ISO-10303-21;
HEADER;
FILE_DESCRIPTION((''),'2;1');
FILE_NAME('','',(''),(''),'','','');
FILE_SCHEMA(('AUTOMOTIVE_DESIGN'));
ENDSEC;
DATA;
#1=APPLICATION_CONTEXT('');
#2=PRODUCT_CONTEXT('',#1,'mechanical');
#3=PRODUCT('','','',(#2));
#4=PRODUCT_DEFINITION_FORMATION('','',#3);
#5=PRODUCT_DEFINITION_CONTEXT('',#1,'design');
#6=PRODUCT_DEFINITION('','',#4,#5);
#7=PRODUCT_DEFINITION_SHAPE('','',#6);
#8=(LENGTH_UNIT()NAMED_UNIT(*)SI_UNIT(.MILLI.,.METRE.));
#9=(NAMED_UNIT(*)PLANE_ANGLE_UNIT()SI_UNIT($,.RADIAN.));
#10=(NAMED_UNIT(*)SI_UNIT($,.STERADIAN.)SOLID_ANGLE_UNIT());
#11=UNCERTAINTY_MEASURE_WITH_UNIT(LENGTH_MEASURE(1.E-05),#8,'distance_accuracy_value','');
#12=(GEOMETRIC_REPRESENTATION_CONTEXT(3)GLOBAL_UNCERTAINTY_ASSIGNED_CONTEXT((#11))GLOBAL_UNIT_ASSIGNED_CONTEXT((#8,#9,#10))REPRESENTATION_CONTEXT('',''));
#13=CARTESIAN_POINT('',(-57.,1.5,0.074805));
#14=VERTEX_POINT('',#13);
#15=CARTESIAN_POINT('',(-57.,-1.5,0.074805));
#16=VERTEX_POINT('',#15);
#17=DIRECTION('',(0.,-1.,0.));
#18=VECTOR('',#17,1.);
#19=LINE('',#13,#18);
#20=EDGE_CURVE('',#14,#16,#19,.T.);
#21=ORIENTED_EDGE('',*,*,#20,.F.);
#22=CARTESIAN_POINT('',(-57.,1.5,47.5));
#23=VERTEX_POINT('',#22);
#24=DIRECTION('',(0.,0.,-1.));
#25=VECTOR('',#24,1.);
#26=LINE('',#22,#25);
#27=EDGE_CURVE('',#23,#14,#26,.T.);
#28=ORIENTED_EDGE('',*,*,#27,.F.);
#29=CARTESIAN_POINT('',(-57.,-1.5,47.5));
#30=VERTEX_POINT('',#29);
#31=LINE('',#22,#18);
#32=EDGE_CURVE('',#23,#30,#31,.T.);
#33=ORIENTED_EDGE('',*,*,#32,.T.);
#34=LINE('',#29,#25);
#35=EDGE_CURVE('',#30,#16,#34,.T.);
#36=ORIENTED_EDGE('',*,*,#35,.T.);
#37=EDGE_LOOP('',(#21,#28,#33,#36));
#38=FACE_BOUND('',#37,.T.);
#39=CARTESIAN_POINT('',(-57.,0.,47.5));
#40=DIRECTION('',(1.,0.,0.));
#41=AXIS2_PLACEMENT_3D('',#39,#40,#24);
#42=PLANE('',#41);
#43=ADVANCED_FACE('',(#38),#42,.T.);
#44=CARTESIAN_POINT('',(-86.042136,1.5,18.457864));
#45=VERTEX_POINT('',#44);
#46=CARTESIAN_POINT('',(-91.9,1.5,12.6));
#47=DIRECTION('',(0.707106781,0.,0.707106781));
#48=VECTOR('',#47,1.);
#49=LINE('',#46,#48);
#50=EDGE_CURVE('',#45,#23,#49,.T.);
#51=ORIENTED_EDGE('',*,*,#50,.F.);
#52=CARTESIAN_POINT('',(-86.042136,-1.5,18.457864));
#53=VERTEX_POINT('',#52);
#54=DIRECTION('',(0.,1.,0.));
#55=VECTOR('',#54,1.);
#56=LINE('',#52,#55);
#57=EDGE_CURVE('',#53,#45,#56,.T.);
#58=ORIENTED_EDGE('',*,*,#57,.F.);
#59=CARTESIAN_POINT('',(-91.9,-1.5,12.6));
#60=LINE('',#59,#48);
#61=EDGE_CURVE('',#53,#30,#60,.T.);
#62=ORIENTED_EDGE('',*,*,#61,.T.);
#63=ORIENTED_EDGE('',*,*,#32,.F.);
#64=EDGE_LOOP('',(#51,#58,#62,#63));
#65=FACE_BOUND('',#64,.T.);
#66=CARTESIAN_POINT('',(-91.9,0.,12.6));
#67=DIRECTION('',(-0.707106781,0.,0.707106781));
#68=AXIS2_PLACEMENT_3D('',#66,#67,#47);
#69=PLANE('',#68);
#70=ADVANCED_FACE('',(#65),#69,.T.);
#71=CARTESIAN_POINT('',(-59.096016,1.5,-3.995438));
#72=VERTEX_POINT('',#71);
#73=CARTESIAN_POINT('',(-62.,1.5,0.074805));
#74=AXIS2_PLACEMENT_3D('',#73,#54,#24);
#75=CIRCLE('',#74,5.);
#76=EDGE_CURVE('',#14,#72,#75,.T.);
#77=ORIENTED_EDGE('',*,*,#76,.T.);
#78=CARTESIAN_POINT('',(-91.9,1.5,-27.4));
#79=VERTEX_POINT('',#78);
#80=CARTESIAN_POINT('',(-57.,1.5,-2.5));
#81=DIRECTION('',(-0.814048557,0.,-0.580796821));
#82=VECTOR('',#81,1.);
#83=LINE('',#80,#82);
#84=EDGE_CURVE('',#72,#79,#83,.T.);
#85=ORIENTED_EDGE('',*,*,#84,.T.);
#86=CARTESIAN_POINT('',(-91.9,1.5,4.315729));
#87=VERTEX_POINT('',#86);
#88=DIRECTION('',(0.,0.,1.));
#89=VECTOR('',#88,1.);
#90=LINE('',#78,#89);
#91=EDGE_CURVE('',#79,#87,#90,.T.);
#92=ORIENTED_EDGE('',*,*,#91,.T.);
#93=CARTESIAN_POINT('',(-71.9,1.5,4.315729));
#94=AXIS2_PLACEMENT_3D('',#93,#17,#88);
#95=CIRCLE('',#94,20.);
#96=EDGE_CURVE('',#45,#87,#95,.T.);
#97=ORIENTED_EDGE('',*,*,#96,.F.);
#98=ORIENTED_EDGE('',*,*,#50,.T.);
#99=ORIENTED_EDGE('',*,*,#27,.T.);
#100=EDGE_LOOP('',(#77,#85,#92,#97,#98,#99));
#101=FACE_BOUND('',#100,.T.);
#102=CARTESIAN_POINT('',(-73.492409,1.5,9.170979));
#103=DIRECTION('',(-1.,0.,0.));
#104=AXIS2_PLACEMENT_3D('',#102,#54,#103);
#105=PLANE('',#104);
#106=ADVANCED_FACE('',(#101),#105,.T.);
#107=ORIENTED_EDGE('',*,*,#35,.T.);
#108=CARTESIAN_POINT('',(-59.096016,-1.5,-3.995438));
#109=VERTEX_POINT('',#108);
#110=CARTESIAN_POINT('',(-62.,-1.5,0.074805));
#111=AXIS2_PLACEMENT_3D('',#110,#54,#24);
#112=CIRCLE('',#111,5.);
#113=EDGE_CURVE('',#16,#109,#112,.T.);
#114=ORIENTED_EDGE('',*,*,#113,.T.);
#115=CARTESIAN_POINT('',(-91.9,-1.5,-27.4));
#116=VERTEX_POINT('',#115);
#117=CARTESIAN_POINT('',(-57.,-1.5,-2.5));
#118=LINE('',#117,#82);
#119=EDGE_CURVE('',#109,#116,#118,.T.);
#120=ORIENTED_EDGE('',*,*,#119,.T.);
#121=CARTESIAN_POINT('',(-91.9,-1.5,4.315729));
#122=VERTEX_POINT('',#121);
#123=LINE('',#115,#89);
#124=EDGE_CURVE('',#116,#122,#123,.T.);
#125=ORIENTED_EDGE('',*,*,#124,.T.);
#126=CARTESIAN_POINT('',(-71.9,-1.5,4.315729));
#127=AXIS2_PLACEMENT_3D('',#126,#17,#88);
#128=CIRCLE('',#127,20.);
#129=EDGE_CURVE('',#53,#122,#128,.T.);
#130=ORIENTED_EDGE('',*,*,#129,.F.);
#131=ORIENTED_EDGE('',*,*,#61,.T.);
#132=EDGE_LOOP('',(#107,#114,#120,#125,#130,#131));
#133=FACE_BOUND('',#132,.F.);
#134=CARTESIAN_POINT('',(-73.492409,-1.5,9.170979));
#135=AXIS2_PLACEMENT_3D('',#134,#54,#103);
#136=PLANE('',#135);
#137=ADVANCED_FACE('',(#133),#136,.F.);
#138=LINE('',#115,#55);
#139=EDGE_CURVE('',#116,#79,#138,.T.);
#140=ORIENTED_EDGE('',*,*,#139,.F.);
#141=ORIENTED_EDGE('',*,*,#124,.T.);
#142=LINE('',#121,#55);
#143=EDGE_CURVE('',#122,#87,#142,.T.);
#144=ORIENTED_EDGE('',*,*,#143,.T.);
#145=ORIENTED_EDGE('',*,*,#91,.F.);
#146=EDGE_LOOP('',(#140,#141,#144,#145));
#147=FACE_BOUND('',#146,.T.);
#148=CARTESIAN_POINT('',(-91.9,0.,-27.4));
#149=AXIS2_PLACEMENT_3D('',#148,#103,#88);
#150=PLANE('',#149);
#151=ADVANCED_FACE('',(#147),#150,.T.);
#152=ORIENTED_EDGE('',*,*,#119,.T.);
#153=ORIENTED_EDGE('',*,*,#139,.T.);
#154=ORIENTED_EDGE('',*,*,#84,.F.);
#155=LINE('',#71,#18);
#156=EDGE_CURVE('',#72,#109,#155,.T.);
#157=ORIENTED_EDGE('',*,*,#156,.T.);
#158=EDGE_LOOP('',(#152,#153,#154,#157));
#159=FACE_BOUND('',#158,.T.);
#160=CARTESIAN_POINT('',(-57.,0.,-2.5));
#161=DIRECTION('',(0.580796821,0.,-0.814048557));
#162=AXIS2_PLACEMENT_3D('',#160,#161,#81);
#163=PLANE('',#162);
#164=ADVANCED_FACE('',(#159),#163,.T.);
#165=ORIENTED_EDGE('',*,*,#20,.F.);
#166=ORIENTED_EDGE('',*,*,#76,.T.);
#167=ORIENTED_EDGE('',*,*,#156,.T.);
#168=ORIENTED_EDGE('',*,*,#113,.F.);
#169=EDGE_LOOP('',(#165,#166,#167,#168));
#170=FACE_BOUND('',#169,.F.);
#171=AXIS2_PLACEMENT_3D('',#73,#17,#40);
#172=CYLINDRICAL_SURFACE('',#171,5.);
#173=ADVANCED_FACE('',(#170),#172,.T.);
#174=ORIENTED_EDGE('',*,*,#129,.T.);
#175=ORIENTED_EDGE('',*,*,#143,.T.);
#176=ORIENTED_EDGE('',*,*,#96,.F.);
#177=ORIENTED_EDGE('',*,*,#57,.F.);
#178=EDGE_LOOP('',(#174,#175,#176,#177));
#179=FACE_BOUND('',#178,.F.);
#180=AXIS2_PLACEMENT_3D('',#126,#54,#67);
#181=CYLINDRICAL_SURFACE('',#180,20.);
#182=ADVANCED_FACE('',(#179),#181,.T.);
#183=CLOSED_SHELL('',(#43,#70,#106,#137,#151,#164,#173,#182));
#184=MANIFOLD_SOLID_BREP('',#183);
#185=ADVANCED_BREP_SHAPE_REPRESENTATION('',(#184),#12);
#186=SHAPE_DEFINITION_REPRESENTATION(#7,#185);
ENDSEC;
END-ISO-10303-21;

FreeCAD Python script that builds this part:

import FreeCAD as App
import Part
import Sketcher
Q = App.Units.Quantity


def edges_at(feature, points):
    """Names of the edges that pass closest to the given points."""
    edges = feature.Shape.Edges
    near = lambda p: min(range(len(edges)), key=lambda i: edges[i].distToShape(Part.Vertex(*p))[0])
    return sorted({f"Edge{near(p) + 1}" for p in points})

doc = App.newDocument("Part")
body = doc.addObject("PartDesign::Body", "Body")

# Sketch on YZ plane
sketch1 = body.newObject("Sketcher::SketchObject", "Sketch")
sketch1.AttachmentSupport = (doc.getObject("YZ_Plane"), [""])
sketch1.MapMode = "FlatFace"
sketch1.addGeometry([
    Part.LineSegment(App.Vector(27, -2.5, 0), App.Vector(61.9, -27.4, 0)),
    Part.LineSegment(App.Vector(61.9, -27.4, 0), App.Vector(61.9, 12.6, 0)),
    Part.LineSegment(App.Vector(61.9, 12.6, 0), App.Vector(27, 47.5, 0)),
    Part.LineSegment(App.Vector(27, 47.5, 0), App.Vector(27, -2.5, 0)),
], False)
sketch1.addConstraint([
    Sketcher.Constraint("Coincident", 0, 2, 1, 1),
    Sketcher.Constraint("Coincident", 1, 2, 2, 1),
    Sketcher.Constraint("Coincident", 2, 2, 3, 1),
    Sketcher.Constraint("Coincident", 3, 2, 0, 1),
    Sketcher.Constraint("Vertical", 1),
    Sketcher.Constraint("Vertical", 3),
    Sketcher.Constraint("DistanceY", 1, 1, 1, 2, Q("40 mm")),
    Sketcher.Constraint("DistanceY", 3, 2, 3, 1, Q("50 mm")),
    Sketcher.Constraint("Angle", 2, Q("135 deg")),
    Sketcher.Constraint("DistanceX", -1, 1, 2, 2, Q("27 mm")),
    Sketcher.Constraint("DistanceX", -1, 1, 0, 2, Q("61.9 mm")),
    Sketcher.Constraint("DistanceY", 0, 2, -1, 1, Q("27.4 mm")),
])
pad1 = body.newObject("PartDesign::Pad", "Pad")
pad1.Profile = sketch1
pad1.Length = 3
pad1.Midplane = True
doc.recompute()

fillet = body.newObject("PartDesign::Fillet", "Fillet")
fillet.Base = (pad1, edges_at(pad1, [(0, 61.9, 12.6)]))
fillet.Radius = 20
doc.recompute()

fillet2 = body.newObject("PartDesign::Fillet", "Fillet001")
fillet2.Base = (fillet, edges_at(fillet, [(0, 27, -2.5)]))
fillet2.Radius = 5
body2 = doc.addObject("PartDesign::Body", "Body001")
doc.recompute()

body.Placement = App.Placement(App.Vector(-30, 0, 0), App.Rotation(App.Vector(0, 0, 1), 90))
boolean = body2.newObject("PartDesign::Boolean", "Boolean")
boolean.Type = "Fuse"
boolean.addObjects([body])

doc.recompute()
